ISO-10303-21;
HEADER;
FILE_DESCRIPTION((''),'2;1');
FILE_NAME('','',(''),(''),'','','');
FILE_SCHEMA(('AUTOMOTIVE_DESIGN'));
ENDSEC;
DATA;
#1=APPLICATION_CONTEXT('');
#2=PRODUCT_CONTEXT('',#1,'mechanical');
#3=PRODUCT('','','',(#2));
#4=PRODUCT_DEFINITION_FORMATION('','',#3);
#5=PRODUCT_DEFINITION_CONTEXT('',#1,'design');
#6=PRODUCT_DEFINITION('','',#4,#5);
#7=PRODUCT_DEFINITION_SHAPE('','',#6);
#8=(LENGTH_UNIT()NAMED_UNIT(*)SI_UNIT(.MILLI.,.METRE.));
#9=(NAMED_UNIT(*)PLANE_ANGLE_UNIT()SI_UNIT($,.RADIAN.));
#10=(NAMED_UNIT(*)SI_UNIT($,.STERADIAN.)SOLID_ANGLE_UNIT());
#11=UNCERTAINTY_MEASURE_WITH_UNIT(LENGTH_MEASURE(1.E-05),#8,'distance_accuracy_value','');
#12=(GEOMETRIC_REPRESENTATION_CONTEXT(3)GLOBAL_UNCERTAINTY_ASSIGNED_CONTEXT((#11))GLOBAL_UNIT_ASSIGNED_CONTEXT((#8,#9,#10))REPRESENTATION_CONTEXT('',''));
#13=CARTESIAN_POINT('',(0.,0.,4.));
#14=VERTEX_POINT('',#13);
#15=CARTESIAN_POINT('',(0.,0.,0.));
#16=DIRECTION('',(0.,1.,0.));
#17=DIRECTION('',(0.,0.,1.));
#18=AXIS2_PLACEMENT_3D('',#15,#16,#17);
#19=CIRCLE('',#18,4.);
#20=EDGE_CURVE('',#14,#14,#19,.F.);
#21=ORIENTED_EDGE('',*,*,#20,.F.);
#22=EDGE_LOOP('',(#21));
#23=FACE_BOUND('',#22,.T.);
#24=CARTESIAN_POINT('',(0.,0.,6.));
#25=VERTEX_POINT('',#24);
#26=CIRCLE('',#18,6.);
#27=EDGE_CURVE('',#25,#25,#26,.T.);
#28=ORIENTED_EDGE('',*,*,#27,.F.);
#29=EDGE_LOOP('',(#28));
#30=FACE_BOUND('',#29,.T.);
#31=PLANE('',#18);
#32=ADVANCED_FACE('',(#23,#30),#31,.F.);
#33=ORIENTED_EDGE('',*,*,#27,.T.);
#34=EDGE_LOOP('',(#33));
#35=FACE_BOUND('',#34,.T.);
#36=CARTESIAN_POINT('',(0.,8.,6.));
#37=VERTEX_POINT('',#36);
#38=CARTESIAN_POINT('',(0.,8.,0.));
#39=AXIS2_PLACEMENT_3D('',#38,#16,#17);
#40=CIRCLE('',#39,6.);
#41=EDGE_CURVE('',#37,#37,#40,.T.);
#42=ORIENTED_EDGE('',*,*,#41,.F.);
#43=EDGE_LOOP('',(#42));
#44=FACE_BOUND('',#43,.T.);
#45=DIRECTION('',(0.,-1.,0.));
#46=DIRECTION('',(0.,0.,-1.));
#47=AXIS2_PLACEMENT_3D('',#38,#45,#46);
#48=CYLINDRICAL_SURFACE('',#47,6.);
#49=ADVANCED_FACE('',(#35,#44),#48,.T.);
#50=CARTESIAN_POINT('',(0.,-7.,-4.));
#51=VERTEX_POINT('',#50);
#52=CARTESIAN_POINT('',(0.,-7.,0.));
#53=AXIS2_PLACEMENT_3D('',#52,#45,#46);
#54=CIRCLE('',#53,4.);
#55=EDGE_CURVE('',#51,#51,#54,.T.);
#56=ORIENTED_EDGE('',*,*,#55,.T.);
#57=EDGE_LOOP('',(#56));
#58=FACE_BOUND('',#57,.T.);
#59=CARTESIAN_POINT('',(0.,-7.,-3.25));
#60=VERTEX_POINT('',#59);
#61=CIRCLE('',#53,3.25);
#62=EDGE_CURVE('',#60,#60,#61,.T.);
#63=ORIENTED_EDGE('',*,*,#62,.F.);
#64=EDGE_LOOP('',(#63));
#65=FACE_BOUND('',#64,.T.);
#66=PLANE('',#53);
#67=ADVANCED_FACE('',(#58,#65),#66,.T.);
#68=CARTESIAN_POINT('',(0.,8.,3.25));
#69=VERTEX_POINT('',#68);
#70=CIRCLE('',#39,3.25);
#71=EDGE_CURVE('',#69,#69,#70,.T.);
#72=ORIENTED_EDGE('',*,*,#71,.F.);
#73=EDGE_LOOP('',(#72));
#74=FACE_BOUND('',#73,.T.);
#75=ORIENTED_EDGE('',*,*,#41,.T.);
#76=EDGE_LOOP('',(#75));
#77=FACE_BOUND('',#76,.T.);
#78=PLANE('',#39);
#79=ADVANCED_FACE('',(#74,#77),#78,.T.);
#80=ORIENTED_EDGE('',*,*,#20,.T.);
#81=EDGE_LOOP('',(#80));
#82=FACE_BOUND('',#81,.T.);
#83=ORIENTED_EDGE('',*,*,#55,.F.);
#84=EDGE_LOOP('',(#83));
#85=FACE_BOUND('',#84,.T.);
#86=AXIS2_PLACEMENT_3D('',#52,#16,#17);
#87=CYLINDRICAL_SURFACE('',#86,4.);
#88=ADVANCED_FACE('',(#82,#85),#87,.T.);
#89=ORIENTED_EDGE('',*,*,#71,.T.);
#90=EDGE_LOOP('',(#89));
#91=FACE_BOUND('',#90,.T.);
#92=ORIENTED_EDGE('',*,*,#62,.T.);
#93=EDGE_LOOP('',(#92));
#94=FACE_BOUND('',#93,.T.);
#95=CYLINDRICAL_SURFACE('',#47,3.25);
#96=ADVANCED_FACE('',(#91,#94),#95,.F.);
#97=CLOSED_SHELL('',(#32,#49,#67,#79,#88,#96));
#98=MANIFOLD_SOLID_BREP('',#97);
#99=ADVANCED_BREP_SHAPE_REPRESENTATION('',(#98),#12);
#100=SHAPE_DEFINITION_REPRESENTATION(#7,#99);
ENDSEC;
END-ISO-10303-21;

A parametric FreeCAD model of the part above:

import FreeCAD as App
import Part
import Sketcher
from FreeCAD import Vector

doc = App.newDocument("Part")
body = doc.addObject("PartDesign::Body", "Body")

# Sketch on XZ plane
sketch1 = body.newObject("Sketcher::SketchObject", "Sketch")
sketch1.AttachmentSupport = (doc.getObject("XZ_Plane"), [""])
sketch1.MapMode = "FlatFace"
sketch1.addGeometry(Part.Circle(Vector(0, 0, 0), Vector(0, 0, 1), 6), False)
sketch1.addGeometry(Part.Circle(Vector(0, 0, 0), Vector(0, 0, 1), 3.2), False)
sketch1.addConstraint(Sketcher.Constraint("Coincident", 0, 3, -1, 1))
sketch1.addConstraint(Sketcher.Constraint("Coincident", 1, 3, -1, 1))
sketch1.addConstraint(Sketcher.Constraint("Diameter", 0, 12.0))
sketch1.addConstraint(Sketcher.Constraint("Diameter", 1, 6.5))
pad1 = body.newObject("PartDesign::Pad", "Pad")
pad1.Profile = sketch1
pad1.Length = 8
pad1.Reversed = True

# Sketch on XZ plane
sketch2 = body.newObject("Sketcher::SketchObject", "Sketch001")
sketch2.AttachmentSupport = (doc.getObject("XZ_Plane"), [""])
sketch2.MapMode = "FlatFace"
sketch2.AttachmentOffset = App.Placement(Vector(0, 0, 7), App.Rotation())
sketch2.addGeometry(Part.Circle(Vector(0, 0, 0), Vector(0, 0, 1), 4), False)
sketch2.addGeometry(Part.Circle(Vector(0, 0, 0), Vector(0, 0, 1), 3.2), False)
sketch2.addConstraint(Sketcher.Constraint("Coincident", 0, 3, -1, 1))
sketch2.addConstraint(Sketcher.Constraint("Coincident", 1, 3, -1, 1))
sketch2.addConstraint(Sketcher.Constraint("Diameter", 0, 8.0))
sketch2.addConstraint(Sketcher.Constraint("Diameter", 1, 6.5))
pad2 = body.newObject("PartDesign::Pad", "Pad001")
pad2.Profile = sketch2
pad2.Length = 7
pad2.Reversed = True

doc.recompute()
